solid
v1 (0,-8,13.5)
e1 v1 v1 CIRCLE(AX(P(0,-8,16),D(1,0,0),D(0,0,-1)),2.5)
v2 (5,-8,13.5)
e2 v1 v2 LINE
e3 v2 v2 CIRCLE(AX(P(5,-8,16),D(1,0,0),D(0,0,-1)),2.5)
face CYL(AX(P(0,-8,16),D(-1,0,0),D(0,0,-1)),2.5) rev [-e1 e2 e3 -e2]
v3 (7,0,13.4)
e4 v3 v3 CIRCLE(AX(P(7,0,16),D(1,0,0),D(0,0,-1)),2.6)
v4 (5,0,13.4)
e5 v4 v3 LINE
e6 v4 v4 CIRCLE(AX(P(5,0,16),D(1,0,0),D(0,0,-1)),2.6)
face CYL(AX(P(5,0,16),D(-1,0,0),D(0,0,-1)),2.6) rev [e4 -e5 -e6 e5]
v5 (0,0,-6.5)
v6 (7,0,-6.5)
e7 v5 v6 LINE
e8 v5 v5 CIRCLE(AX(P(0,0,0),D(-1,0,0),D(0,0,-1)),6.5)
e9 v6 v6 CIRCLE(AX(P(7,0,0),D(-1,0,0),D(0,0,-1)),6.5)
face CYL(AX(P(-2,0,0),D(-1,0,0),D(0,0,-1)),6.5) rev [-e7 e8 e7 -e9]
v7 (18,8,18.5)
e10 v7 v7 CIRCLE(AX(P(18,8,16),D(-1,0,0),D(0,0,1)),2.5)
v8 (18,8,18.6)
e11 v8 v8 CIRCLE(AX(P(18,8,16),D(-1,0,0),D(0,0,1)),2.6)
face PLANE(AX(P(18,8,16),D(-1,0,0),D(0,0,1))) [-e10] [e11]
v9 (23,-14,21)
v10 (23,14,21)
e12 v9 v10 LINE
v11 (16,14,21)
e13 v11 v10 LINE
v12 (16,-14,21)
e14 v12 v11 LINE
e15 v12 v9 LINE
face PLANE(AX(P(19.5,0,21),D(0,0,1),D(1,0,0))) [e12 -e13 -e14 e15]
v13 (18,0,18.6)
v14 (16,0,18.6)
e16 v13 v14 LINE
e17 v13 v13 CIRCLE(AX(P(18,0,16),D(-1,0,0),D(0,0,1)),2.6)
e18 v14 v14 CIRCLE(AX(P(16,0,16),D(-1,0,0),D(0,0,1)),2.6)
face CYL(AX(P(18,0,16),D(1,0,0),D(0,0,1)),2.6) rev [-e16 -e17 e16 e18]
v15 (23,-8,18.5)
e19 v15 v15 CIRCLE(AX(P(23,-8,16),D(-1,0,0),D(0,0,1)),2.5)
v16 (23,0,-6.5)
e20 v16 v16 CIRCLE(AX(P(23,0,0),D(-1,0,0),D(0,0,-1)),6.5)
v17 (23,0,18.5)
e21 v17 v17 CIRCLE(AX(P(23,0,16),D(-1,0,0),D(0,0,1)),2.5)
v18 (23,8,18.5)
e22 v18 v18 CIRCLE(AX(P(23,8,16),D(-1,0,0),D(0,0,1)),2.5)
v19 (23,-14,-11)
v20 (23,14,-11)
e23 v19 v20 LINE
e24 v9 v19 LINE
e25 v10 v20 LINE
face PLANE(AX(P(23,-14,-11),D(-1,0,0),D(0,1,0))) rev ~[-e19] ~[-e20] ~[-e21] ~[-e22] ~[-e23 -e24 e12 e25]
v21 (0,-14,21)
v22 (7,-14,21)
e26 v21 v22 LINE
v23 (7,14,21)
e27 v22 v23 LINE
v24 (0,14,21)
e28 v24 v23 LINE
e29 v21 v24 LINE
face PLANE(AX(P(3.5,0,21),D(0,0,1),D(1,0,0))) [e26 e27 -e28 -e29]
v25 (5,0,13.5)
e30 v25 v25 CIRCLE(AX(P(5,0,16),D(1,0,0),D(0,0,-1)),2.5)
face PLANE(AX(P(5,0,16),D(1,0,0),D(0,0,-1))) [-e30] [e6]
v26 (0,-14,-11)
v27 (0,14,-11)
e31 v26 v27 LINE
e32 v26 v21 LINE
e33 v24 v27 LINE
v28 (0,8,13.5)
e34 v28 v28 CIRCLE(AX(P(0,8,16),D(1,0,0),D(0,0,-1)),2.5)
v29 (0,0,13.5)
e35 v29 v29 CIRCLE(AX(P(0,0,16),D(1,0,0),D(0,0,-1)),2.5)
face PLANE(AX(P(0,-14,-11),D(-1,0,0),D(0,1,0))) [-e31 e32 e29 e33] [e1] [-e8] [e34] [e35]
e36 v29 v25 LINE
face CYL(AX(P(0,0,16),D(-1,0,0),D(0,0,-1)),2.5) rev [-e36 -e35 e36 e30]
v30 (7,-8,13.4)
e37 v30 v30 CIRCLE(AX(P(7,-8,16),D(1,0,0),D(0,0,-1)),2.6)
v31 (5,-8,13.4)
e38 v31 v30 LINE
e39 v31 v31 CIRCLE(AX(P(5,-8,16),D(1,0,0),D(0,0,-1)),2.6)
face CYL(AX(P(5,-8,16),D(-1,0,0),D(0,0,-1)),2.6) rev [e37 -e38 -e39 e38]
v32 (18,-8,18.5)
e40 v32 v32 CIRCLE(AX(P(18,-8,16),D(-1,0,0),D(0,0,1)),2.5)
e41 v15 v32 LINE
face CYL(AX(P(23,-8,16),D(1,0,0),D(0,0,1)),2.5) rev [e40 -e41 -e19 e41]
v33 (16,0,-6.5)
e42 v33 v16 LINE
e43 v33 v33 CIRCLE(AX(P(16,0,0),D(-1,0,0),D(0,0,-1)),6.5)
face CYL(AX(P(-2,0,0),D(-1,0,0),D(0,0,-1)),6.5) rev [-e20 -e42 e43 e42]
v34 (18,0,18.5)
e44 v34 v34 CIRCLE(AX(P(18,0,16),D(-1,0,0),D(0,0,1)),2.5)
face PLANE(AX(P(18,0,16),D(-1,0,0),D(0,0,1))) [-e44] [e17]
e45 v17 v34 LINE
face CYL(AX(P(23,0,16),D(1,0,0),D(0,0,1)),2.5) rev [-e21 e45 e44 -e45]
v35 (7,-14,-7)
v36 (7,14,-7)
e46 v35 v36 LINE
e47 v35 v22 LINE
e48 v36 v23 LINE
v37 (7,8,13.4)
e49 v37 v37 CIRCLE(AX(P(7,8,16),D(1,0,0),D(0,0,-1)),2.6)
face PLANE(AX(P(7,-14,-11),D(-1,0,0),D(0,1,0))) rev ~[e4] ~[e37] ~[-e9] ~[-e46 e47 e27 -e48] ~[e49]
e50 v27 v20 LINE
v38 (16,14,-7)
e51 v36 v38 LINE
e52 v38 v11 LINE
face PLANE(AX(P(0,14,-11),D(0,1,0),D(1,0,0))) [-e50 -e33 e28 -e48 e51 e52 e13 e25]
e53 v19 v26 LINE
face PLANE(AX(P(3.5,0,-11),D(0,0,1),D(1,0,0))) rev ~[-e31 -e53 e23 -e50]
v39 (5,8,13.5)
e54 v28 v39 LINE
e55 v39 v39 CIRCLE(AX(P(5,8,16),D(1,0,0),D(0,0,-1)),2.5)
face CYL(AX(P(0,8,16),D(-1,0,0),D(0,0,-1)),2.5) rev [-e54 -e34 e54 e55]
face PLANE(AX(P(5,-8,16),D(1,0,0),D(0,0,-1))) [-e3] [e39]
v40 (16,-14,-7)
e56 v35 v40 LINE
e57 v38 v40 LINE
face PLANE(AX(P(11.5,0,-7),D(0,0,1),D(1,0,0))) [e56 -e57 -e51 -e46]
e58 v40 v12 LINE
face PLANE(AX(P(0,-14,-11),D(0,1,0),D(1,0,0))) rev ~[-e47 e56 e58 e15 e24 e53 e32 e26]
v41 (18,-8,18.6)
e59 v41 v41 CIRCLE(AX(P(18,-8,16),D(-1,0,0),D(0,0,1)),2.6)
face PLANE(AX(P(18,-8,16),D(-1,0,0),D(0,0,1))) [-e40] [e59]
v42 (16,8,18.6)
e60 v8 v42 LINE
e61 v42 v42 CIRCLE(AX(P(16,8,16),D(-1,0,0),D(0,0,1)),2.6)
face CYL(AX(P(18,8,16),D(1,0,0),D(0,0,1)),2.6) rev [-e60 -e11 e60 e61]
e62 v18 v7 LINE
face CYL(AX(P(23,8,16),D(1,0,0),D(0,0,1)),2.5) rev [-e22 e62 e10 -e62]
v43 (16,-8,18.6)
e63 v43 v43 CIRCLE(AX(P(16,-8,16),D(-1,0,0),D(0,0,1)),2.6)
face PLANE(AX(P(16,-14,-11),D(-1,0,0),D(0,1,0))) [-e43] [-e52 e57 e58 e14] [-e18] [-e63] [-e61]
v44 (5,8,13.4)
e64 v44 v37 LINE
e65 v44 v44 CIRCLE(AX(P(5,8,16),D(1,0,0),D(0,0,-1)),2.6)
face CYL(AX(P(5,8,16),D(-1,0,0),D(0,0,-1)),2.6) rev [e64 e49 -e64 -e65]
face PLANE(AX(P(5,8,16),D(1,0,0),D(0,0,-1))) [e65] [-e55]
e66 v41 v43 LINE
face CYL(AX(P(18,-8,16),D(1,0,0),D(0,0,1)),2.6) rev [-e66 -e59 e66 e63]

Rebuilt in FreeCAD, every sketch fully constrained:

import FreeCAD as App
import Part
import Sketcher


def add_polygon(sketch, points):
    """Adds a closed chain of lines whose ends are joined by coincident constraints."""
    first, n = sketch.GeometryCount, len(points)
    for a, b in zip(points, points[1:] + points[:1]):
        sketch.addGeometry(Part.LineSegment(App.Vector(*a, 0), App.Vector(*b, 0)), False)
    for i in range(n):
        sketch.addConstraint(Sketcher.Constraint("Coincident", first + i, 2, first + (i + 1) % n, 1))

doc = App.newDocument("Part")
body = doc.addObject("PartDesign::Body", "Body")

sketch1 = doc.addObject("Sketcher::SketchObject", "Sketch")
body.addObject(sketch1)
sketch1.AttachmentSupport = (doc.XY_Plane, [""])
sketch1.MapMode = "FlatFace"
sketch1.AttachmentOffset = App.Placement(App.Vector(0, 0, 5), App.Rotation())
sketch1.addGeometry(Part.Circle(App.Vector(0, 0, 0), App.Vector(0, 0, 1), 2.6), False)
sketch1.addConstraint([
    Sketcher.Constraint("Coincident", 0, 3, -1, 1),
    Sketcher.Constraint("Diameter", 0, 5.2),
])
pad1 = doc.addObject("PartDesign::Pad", "Pad")
body.addObject(pad1)
pad1.Profile = sketch1
pad1.Length = 2
body2 = doc.addObject("PartDesign::Body", "Body001")

sketch2 = doc.addObject("Sketcher::SketchObject", "Sketch001")
body2.addObject(sketch2)
sketch2.AttachmentSupport = (doc.getObject("XY_Plane001"), [""])
sketch2.MapMode = "FlatFace"
sketch2.addGeometry(Part.Circle(App.Vector(0, 0, 0), App.Vector(0, 0, 1), 2.5), False)
sketch2.addConstraint([
    Sketcher.Constraint("Coincident", 0, 3, -1, 1),
    Sketcher.Constraint("Diameter", 0, 5.0),
])
pad2 = doc.addObject("PartDesign::Pad", "Pad001")
body2.addObject(pad2)
pad2.Profile = sketch2
pad2.Length = 5
doc.recompute()

boolean = doc.addObject("PartDesign::Boolean", "Boolean")
body2.addObject(boolean)
boolean.Type = "Fuse"
boolean.addObjects([body])
body3 = doc.addObject("PartDesign::Body", "Body002")
doc.recompute()

body2.Placement = App.Placement(App.Vector(0, 0, 16), App.Rotation(App.Vector(0, 1, 0), 90))
boolean2 = doc.addObject("PartDesign::Boolean", "Boolean001")
body3.addObject(boolean2)
boolean2.Type = "Fuse"
boolean2.addObjects([body2])
body4 = doc.addObject("PartDesign::Body", "Body003")

sketch3 = doc.addObject("Sketcher::SketchObject", "Sketch002")
body4.addObject(sketch3)
sketch3.AttachmentSupport = (doc.getObject("XY_Plane003"), [""])
sketch3.MapMode = "FlatFace"
sketch3.AttachmentOffset = App.Placement(App.Vector(0, 0, 5), App.Rotation())
sketch3.addGeometry(Part.Circle(App.Vector(0, 0, 0), App.Vector(0, 0, 1), 2.6), False)
sketch3.addConstraint([
    Sketcher.Constraint("Coincident", 0, 3, -1, 1),
    Sketcher.Constraint("Diameter", 0, 5.2),
])
pad3 = doc.addObject("PartDesign::Pad", "Pad002")
body4.addObject(pad3)
pad3.Profile = sketch3
pad3.Length = 2
body5 = doc.addObject("PartDesign::Body", "Body004")

sketch4 = doc.addObject("Sketcher::SketchObject", "Sketch003")
body5.addObject(sketch4)
sketch4.AttachmentSupport = (doc.getObject("XY_Plane004"), [""])
sketch4.MapMode = "FlatFace"
sketch4.addGeometry(Part.Circle(App.Vector(0, 0, 0), App.Vector(0, 0, 1), 2.5), False)
sketch4.addConstraint([
    Sketcher.Constraint("Coincident", 0, 3, -1, 1),
    Sketcher.Constraint("Diameter", 0, 5.0),
])
pad4 = doc.addObject("PartDesign::Pad", "Pad003")
body5.addObject(pad4)
pad4.Profile = sketch4
pad4.Length = 5
doc.recompute()

boolean3 = doc.addObject("PartDesign::Boolean", "Boolean002")
body5.addObject(boolean3)
boolean3.Type = "Fuse"
boolean3.addObjects([body4])
body6 = doc.addObject("PartDesign::Body", "Body005")
doc.recompute()

body5.Placement = App.Placement(App.Vector(23, 8, 16), App.Rotation(App.Vector(0, -1, 0), 90))
boolean4 = doc.addObject("PartDesign::Boolean", "Boolean003")
body6.addObject(boolean4)
boolean4.Type = "Fuse"
boolean4.addObjects([body5])
body7 = doc.addObject("PartDesign::Body", "Body006")

sketch5 = doc.addObject("Sketcher::SketchObject", "Sketch004")
body7.addObject(sketch5)
sketch5.AttachmentSupport = (doc.getObject("XY_Plane006"), [""])
sketch5.MapMode = "FlatFace"
sketch5.AttachmentOffset = App.Placement(App.Vector(0, 0, 5), App.Rotation())
sketch5.addGeometry(Part.Circle(App.Vector(0, 0, 0), App.Vector(0, 0, 1), 2.6), False)
sketch5.addConstraint([
    Sketcher.Constraint("Coincident", 0, 3, -1, 1),
    Sketcher.Constraint("Diameter", 0, 5.2),
])
pad5 = doc.addObject("PartDesign::Pad", "Pad004")
body7.addObject(pad5)
pad5.Profile = sketch5
pad5.Length = 2
body8 = doc.addObject("PartDesign::Body", "Body007")

sketch6 = doc.addObject("Sketcher::SketchObject", "Sketch005")
body8.addObject(sketch6)
sketch6.AttachmentSupport = (doc.getObject("XY_Plane007"), [""])
sketch6.MapMode = "FlatFace"
sketch6.addGeometry(Part.Circle(App.Vector(0, 0, 0), App.Vector(0, 0, 1), 2.5), False)
sketch6.addConstraint([
    Sketcher.Constraint("Coincident", 0, 3, -1, 1),
    Sketcher.Constraint("Diameter", 0, 5.0),
])
pad6 = doc.addObject("PartDesign::Pad", "Pad005")
body8.addObject(pad6)
pad6.Profile = sketch6
pad6.Length = 5
doc.recompute()

boolean5 = doc.addObject("PartDesign::Boolean", "Boolean004")
body8.addObject(boolean5)
boolean5.Type = "Fuse"
boolean5.addObjects([body7])
body9 = doc.addObject("PartDesign::Body", "Body008")
doc.recompute()

body8.Placement = App.Placement(App.Vector(23, -8, 16), App.Rotation(App.Vector(0, -1, 0), 90))
boolean6 = doc.addObject("PartDesign::Boolean", "Boolean005")
body9.addObject(boolean6)
boolean6.Type = "Fuse"
boolean6.addObjects([body8])
body10 = doc.addObject("PartDesign::Body", "Body009")

sketch7 = doc.addObject("Sketcher::SketchObject", "Sketch006")
body10.addObject(sketch7)
sketch7.AttachmentSupport = (doc.getObject("XY_Plane009"), [""])
sketch7.MapMode = "FlatFace"
sketch7.AttachmentOffset = App.Placement(App.Vector(0, 0, 5), App.Rotation())
sketch7.addGeometry(Part.Circle(App.Vector(0, 0, 0), App.Vector(0, 0, 1), 2.6), False)
sketch7.addConstraint([
    Sketcher.Constraint("Coincident", 0, 3, -1, 1),
    Sketcher.Constraint("Diameter", 0, 5.2),
])
pad7 = doc.addObject("PartDesign::Pad", "Pad006")
body10.addObject(pad7)
pad7.Profile = sketch7
pad7.Length = 2
body11 = doc.addObject("PartDesign::Body", "Body010")

sketch8 = doc.addObject("Sketcher::SketchObject", "Sketch007")
body11.addObject(sketch8)
sketch8.AttachmentSupport = (doc.getObject("XY_Plane010"), [""])
sketch8.MapMode = "FlatFace"
sketch8.addGeometry(Part.Circle(App.Vector(0, 0, 0), App.Vector(0, 0, 1), 2.5), False)
sketch8.addConstraint([
    Sketcher.Constraint("Coincident", 0, 3, -1, 1),
    Sketcher.Constraint("Diameter", 0, 5.0),
])
pad8 = doc.addObject("PartDesign::Pad", "Pad007")
body11.addObject(pad8)
pad8.Profile = sketch8
pad8.Length = 5
doc.recompute()

boolean7 = doc.addObject("PartDesign::Boolean", "Boolean006")
body11.addObject(boolean7)
boolean7.Type = "Fuse"
boolean7.addObjects([body10])
body12 = doc.addObject("PartDesign::Body", "Body011")
doc.recompute()

body11.Placement = App.Placement(App.Vector(0, -8, 16), App.Rotation(App.Vector(0, 1, 0), 90))
boolean8 = doc.addObject("PartDesign::Boolean", "Boolean007")
body12.addObject(boolean8)
boolean8.Type = "Fuse"
boolean8.addObjects([body11])
body13 = doc.addObject("PartDesign::Body", "Body012")

sketch9 = doc.addObject("Sketcher::SketchObject", "Sketch008")
body13.addObject(sketch9)
sketch9.AttachmentSupport = (doc.getObject("XY_Plane012"), [""])
sketch9.MapMode = "FlatFace"
sketch9.AttachmentOffset = App.Placement(App.Vector(0, 0, 5), App.Rotation())
sketch9.addGeometry(Part.Circle(App.Vector(0, 0, 0), App.Vector(0, 0, 1), 2.6), False)
sketch9.addConstraint([
    Sketcher.Constraint("Coincident", 0, 3, -1, 1),
    Sketcher.Constraint("Diameter", 0, 5.2),
])
pad9 = doc.addObject("PartDesign::Pad", "Pad008")
body13.addObject(pad9)
pad9.Profile = sketch9
pad9.Length = 2
body14 = doc.addObject("PartDesign::Body", "Body013")

sketch10 = doc.addObject("Sketcher::SketchObject", "Sketch009")
body14.addObject(sketch10)
sketch10.AttachmentSupport = (doc.getObject("XY_Plane013"), [""])
sketch10.MapMode = "FlatFace"
sketch10.addGeometry(Part.Circle(App.Vector(0, 0, 0), App.Vector(0, 0, 1), 2.5), False)
sketch10.addConstraint([
    Sketcher.Constraint("Coincident", 0, 3, -1, 1),
    Sketcher.Constraint("Diameter", 0, 5.0),
])
pad10 = doc.addObject("PartDesign::Pad", "Pad009")
body14.addObject(pad10)
pad10.Profile = sketch10
pad10.Length = 5
doc.recompute()

boolean9 = doc.addObject("PartDesign::Boolean", "Boolean008")
body14.addObject(boolean9)
boolean9.Type = "Fuse"
boolean9.addObjects([body13])
body15 = doc.addObject("PartDesign::Body", "Body014")
doc.recompute()

body14.Placement = App.Placement(App.Vector(0, 8, 16), App.Rotation(App.Vector(0, 1, 0), 90))
boolean10 = doc.addObject("PartDesign::Boolean", "Boolean009")
body15.addObject(boolean10)
boolean10.Type = "Fuse"
boolean10.addObjects([body14])
body16 = doc.addObject("PartDesign::Body", "Body015")

sketch11 = doc.addObject("Sketcher::SketchObject", "Sketch010")
body16.addObject(sketch11)
sketch11.AttachmentSupport = (doc.getObject("YZ_Plane015"), [""])
sketch11.MapMode = "FlatFace"
sketch11.AttachmentOffset = App.Placement(App.Vector(0, 0, -2), App.Rotation())
sketch11.addGeometry(Part.Circle(App.Vector(0, 0, 0), App.Vector(0, 0, 1), 6), False)
sketch11.addConstraint([
    Sketcher.Constraint("Coincident", 0, 3, -1, 1),
    Sketcher.Constraint("Diameter", 0, 13.0),
])
pad11 = doc.addObject("PartDesign::Pad", "Pad010")
body16.addObject(pad11)
pad11.Profile = sketch11
pad11.Length = 130
body17 = doc.addObject("PartDesign::Body", "Body016")

sketch12 = doc.addObject("Sketcher::SketchObject", "Sketch011")
body17.addObject(sketch12)
sketch12.AttachmentSupport = (doc.getObject("XY_Plane016"), [""])
sketch12.MapMode = "FlatFace"
sketch12.AttachmentOffset = App.Placement(App.Vector(0, 0, 5), App.Rotation())
sketch12.addGeometry(Part.Circle(App.Vector(0, 0, 0), App.Vector(0, 0, 1), 2.6), False)
sketch12.addConstraint([
    Sketcher.Constraint("Coincident", 0, 3, -1, 1),
    Sketcher.Constraint("Diameter", 0, 5.2),
])
pad12 = doc.addObject("PartDesign::Pad", "Pad011")
body17.addObject(pad12)
pad12.Profile = sketch12
pad12.Length = 2
body18 = doc.addObject("PartDesign::Body", "Body017")

sketch13 = doc.addObject("Sketcher::SketchObject", "Sketch012")
body18.addObject(sketch13)
sketch13.AttachmentSupport = (doc.getObject("XY_Plane017"), [""])
sketch13.MapMode = "FlatFace"
sketch13.addGeometry(Part.Circle(App.Vector(0, 0, 0), App.Vector(0, 0, 1), 2.5), False)
sketch13.addConstraint([
    Sketcher.Constraint("Coincident", 0, 3, -1, 1),
    Sketcher.Constraint("Diameter", 0, 5.0),
])
pad13 = doc.addObject("PartDesign::Pad", "Pad012")
body18.addObject(pad13)
pad13.Profile = sketch13
pad13.Length = 5
doc.recompute()

boolean11 = doc.addObject("PartDesign::Boolean", "Boolean010")
body18.addObject(boolean11)
boolean11.Type = "Fuse"
boolean11.addObjects([body17])
body19 = doc.addObject("PartDesign::Body", "Body018")
body19.AllowCompound = True
doc.recompute()

body18.Placement = App.Placement(App.Vector(23, 0, 16), App.Rotation(App.Vector(0, -1, 0), 90))
boolean12 = doc.addObject("PartDesign::Boolean", "Boolean011")
body19.addObject(boolean12)
boolean12.Type = "Fuse"
boolean12.addObjects([body18])
doc.recompute()

boolean13 = doc.addObject("PartDesign::Boolean", "Boolean012")
body19.addObject(boolean13)
boolean13.Type = "Fuse"
boolean13.addObjects([body6])
doc.recompute()

boolean14 = doc.addObject("PartDesign::Boolean", "Boolean013")
body19.addObject(boolean14)
boolean14.Type = "Fuse"
boolean14.addObjects([body9])
doc.recompute()

boolean15 = doc.addObject("PartDesign::Boolean", "Boolean014")
body19.addObject(boolean15)
boolean15.Type = "Fuse"
boolean15.addObjects([body12])
doc.recompute()

boolean16 = doc.addObject("PartDesign::Boolean", "Boolean015")
body19.addObject(boolean16)
boolean16.Type = "Fuse"
boolean16.addObjects([body15])
doc.recompute()

boolean17 = doc.addObject("PartDesign::Boolean", "Boolean016")
body19.addObject(boolean17)
boolean17.Type = "Fuse"
boolean17.addObjects([body16])
body20 = doc.addObject("PartDesign::Body", "Body019")

sketch14 = doc.addObject("Sketcher::SketchObject", "Sketch013")
body20.addObject(sketch14)
sketch14.AttachmentSupport = (doc.getObject("XY_Plane019"), [""])
sketch14.MapMode = "FlatFace"
sketch14.AttachmentOffset = App.Placement(App.Vector(0, 0, -11), App.Rotation())
add_polygon(sketch14, [(0, 14), (0, -14), (23, -14), (23, 14)])
sketch14.addConstraint([
    Sketcher.Constraint("Vertical", 0),
    Sketcher.Constraint("Horizontal", 1),
    Sketcher.Constraint("Vertical", 2),
    Sketcher.Constraint("Horizontal", 3),
    Sketcher.Constraint("Symmetric", 0, 2, 3, 2, -1, 1),
    Sketcher.Constraint("DistanceX", 1, 1, 1, 2, 23.0),
    Sketcher.Constraint("DistanceY", 0, 2, 0, 1, 28.0),
])
pad14 = doc.addObject("PartDesign::Pad", "Pad013")
body20.addObject(pad14)
pad14.Profile = sketch14
pad14.Length = 4
body21 = doc.addObject("PartDesign::Body", "Body020")

sketch15 = doc.addObject("Sketcher::SketchObject", "Sketch014")
body21.addObject(sketch15)
sketch15.AttachmentSupport = (doc.getObject("XY_Plane020"), [""])
sketch15.MapMode = "FlatFace"
sketch15.AttachmentOffset = App.Placement(App.Vector(0, 0, -11), App.Rotation())
add_polygon(sketch15, [(16, 14), (16, -14), (23, -14), (23, 14)])
sketch15.addConstraint([
    Sketcher.Constraint("Vertical", 0),
    Sketcher.Constraint("Horizontal", 1),
    Sketcher.Constraint("Vertical", 2),
    Sketcher.Constraint("Horizontal", 3),
    Sketcher.Constraint("DistanceX", 1, 1, 1, 2, 7.0),
    Sketcher.Constraint("DistanceY", 0, 2, 0, 1, 28.0),
    Sketcher.Constraint("DistanceX", -1, 1, 0, 2, 16.0),
    Sketcher.Constraint("DistanceY", 0, 2, -1, 1, 14.0),
])
pad15 = doc.addObject("PartDesign::Pad", "Pad014")
body21.addObject(pad15)
pad15.Profile = sketch15
pad15.Length = 32
body22 = doc.addObject("PartDesign::Body", "Body021")

sketch16 = doc.addObject("Sketcher::SketchObject", "Sketch015")
body22.addObject(sketch16)
sketch16.AttachmentSupport = (doc.getObject("XY_Plane021"), [""])
sketch16.MapMode = "FlatFace"
sketch16.AttachmentOffset = App.Placement(App.Vector(0, 0, -11), App.Rotation())
add_polygon(sketch16, [(0, 14), (0, -14), (7, -14), (7, 14)])
sketch16.addConstraint([
    Sketcher.Constraint("Vertical", 0),
    Sketcher.Constraint("Horizontal", 1),
    Sketcher.Constraint("Vertical", 2),
    Sketcher.Constraint("Horizontal", 3),
    Sketcher.Constraint("Symmetric", 0, 2, 3, 2, -1, 1),
    Sketcher.Constraint("DistanceX", 1, 1, 1, 2, 7.0),
    Sketcher.Constraint("DistanceY", 0, 2, 0, 1, 28.0),
])
pad16 = doc.addObject("PartDesign::Pad", "Pad015")
body22.addObject(pad16)
pad16.Profile = sketch16
pad16.Length = 32
doc.recompute()

boolean18 = doc.addObject("PartDesign::Boolean", "Boolean017")
body22.addObject(boolean18)
boolean18.Type = "Fuse"
boolean18.addObjects([body20])
doc.recompute()

boolean19 = doc.addObject("PartDesign::Boolean", "Boolean018")
body22.addObject(boolean19)
boolean19.Type = "Fuse"
boolean19.addObjects([body21])
doc.recompute()

boolean20 = doc.addObject("PartDesign::Boolean", "Boolean019")
body22.addObject(boolean20)
boolean20.Type = "Cut"
boolean20.addObjects([body19])
doc.recompute()

boolean21 = doc.addObject("PartDesign::Boolean", "Boolean020")
body22.addObject(boolean21)
boolean21.Type = "Cut"
boolean21.addObjects([body3])

doc.recompute()
